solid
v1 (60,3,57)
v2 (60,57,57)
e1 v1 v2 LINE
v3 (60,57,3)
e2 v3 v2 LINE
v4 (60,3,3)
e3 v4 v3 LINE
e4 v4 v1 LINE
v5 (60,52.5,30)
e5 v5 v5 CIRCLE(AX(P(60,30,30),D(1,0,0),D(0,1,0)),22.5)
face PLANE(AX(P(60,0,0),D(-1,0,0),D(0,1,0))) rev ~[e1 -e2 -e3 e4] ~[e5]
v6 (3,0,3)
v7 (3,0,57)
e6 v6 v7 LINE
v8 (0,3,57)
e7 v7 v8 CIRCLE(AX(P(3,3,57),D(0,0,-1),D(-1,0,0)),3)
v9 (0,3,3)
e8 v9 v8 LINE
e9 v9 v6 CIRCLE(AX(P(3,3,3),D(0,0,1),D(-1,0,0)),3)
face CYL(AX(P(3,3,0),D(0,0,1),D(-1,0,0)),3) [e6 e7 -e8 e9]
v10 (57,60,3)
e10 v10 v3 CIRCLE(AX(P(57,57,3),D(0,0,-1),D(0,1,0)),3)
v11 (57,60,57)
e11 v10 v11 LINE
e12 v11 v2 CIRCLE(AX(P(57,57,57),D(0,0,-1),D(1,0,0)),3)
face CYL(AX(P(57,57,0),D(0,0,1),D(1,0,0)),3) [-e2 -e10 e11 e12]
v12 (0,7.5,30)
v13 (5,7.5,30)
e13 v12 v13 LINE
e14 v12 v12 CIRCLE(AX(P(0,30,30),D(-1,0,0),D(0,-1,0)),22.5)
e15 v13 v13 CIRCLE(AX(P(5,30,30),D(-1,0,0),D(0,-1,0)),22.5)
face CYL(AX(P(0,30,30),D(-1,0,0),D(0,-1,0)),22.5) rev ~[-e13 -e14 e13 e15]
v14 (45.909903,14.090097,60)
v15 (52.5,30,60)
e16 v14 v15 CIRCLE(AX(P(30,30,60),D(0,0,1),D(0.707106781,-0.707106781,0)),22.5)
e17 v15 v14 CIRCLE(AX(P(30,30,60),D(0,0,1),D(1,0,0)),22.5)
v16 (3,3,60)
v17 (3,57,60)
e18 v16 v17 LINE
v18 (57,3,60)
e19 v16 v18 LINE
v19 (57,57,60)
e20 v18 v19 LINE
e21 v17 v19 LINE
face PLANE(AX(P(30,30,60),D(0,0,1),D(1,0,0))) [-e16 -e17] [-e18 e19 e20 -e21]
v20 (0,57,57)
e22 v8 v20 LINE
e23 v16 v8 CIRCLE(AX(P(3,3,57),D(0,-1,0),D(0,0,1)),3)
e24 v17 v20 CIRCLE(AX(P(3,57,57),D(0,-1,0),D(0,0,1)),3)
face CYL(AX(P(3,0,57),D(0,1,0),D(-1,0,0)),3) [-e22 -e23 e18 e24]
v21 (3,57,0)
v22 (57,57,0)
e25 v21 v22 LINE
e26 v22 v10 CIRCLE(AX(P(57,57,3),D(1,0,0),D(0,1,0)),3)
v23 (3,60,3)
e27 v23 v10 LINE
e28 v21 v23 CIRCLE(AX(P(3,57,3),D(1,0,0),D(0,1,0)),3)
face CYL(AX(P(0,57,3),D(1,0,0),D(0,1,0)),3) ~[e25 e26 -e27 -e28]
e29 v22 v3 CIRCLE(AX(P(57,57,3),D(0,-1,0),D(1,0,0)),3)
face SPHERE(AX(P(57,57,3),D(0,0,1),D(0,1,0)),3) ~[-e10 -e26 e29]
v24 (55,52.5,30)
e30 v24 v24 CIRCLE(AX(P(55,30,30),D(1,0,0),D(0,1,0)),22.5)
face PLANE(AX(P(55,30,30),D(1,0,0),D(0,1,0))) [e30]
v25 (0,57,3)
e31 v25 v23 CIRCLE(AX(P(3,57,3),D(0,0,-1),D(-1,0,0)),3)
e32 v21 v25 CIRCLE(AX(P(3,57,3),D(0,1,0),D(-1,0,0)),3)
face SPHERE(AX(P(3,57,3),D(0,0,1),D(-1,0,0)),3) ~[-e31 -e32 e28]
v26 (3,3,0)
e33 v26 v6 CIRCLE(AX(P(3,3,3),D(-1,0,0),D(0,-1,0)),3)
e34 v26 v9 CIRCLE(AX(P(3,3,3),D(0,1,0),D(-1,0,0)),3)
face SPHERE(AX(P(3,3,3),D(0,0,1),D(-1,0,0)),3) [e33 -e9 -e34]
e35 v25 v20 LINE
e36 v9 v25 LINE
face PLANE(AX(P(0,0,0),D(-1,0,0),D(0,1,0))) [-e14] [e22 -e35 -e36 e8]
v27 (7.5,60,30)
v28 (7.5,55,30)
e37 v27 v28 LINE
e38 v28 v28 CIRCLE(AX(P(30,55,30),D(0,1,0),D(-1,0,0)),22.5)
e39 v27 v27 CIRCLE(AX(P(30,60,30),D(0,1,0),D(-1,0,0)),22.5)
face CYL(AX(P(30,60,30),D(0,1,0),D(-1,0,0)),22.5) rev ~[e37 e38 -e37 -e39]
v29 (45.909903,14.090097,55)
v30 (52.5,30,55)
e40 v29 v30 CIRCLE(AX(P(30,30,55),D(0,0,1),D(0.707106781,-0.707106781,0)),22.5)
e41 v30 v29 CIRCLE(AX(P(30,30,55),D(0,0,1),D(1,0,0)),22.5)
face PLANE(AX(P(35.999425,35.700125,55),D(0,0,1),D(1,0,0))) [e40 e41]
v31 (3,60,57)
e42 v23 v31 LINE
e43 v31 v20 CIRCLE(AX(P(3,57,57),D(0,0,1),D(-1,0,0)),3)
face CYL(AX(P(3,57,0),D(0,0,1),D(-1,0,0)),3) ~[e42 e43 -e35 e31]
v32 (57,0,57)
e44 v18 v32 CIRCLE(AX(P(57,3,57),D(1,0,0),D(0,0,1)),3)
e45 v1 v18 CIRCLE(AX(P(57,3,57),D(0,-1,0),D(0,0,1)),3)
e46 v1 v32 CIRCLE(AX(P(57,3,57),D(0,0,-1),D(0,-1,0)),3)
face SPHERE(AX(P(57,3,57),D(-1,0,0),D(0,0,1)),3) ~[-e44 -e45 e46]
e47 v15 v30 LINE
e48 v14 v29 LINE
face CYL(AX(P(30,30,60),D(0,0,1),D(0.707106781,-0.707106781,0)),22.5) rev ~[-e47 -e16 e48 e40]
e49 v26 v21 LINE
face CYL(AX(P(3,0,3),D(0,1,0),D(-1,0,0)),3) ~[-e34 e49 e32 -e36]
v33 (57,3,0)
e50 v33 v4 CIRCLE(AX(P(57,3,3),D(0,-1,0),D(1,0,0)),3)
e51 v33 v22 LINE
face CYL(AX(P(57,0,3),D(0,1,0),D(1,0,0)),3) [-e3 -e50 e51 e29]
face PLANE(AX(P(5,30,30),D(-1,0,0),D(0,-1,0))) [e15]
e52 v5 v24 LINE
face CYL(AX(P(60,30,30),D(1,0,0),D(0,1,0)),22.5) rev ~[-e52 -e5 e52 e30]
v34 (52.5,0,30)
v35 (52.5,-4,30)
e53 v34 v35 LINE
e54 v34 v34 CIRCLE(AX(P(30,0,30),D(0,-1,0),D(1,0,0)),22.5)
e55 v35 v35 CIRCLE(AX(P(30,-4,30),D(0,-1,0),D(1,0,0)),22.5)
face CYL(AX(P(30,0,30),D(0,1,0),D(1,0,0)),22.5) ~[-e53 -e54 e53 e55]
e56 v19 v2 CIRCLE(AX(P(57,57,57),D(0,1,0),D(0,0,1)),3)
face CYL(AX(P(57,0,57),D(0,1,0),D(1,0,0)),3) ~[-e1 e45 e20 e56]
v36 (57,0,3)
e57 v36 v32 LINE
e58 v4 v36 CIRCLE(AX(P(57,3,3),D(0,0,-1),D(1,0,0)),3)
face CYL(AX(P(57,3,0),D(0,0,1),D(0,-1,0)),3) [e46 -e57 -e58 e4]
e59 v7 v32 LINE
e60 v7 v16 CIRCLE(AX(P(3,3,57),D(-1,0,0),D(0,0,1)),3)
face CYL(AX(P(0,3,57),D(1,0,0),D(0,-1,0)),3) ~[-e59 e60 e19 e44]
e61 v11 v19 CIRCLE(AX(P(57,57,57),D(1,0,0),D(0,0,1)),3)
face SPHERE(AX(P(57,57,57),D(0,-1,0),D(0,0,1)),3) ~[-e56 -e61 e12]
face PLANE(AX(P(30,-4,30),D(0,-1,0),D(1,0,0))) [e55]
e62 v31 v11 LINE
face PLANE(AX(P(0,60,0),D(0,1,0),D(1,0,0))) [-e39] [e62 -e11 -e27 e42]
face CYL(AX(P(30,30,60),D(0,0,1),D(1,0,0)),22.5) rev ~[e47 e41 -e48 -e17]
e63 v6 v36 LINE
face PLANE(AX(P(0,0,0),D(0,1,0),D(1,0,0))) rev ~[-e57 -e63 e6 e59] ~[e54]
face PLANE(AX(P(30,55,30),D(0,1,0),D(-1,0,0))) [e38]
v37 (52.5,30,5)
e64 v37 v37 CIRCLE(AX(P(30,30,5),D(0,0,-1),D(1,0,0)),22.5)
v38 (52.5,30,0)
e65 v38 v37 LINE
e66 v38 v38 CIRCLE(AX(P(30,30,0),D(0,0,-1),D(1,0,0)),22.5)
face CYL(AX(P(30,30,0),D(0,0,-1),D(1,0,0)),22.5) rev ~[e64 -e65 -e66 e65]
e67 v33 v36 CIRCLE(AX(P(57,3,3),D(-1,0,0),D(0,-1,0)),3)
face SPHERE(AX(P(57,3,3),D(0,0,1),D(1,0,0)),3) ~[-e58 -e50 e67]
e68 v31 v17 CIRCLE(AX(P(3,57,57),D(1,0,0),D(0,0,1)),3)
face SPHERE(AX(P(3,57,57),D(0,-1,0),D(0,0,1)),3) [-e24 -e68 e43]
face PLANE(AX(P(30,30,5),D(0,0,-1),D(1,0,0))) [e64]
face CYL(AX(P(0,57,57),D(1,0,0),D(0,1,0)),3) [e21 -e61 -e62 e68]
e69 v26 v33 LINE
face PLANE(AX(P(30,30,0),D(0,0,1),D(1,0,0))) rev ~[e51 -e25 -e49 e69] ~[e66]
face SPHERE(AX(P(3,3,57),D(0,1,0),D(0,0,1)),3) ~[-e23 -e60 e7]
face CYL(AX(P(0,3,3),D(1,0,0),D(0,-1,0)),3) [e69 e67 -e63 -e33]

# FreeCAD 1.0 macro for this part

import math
import FreeCAD as App
import Part
import Sketcher

V = App.Vector


def add_polygon(sketch, points):
    """Adds a closed chain of lines whose ends are joined by coincident constraints."""
    first, n = sketch.GeometryCount, len(points)
    for a, b in zip(points, points[1:] + points[:1]):
        sketch.addGeometry(Part.LineSegment(App.Vector(*a, 0), App.Vector(*b, 0)), False)
    for i in range(n):
        sketch.addConstraint(Sketcher.Constraint("Coincident", first + i, 2, first + (i + 1) % n, 1))

doc = App.newDocument("Part")
params = doc.addObject("Spreadsheet::Sheet", "Params")
for row, (alias, value) in enumerate([
    ("sketch1_width", "60 mm"),
    ("pad1_length", "60 mm"),
    ("fillet_radius", "3 mm"),
    ("sketch2_radius", "22.5 mm"),
    ("pocket1_length", "5 mm"),
    ("sketch3_diameter", "45 mm"),
    ("pocket2_length", "5 mm"),
    ("sketch4_diameter", "45 mm"),
    ("pad2_length", "4 mm"),
    ("sketch5_diameter", "45 mm"),
    ("pocket3_length", "5 mm"),
    ("sketch6_diameter", "45 mm"),
    ("pocket4_length", "5 mm"),
    ("sketch7_diameter", "45 mm"),
    ("pocket5_length", "5 mm"),
], start=1):
    params.set(f"A{row}", alias)
    params.set(f"B{row}", "=" + value)
    params.setAlias(f"B{row}", alias)

body = doc.addObject("PartDesign::Body", "Body")

# Sketch on XY plane
sketch1 = doc.addObject("Sketcher::SketchObject", "Sketch")
body.addObject(sketch1)
sketch1.AttachmentSupport = (doc.XY_Plane, [""])
sketch1.MapMode = "FlatFace"
add_polygon(sketch1, [(0, 60), (0, 0), (60, 0), (60, 60)])  # lines 0-3
sketch1.addConstraint(Sketcher.Constraint("Vertical", 0))
sketch1.addConstraint(Sketcher.Constraint("Horizontal", 1))
sketch1.addConstraint(Sketcher.Constraint("Vertical", 2))
sketch1.addConstraint(Sketcher.Constraint("Horizontal", 3))
sketch1.addConstraint(Sketcher.Constraint("Coincident", 0, 2, -1, 1))
sketch1.addConstraint(Sketcher.Constraint("Equal", 3, 0))
sketch1.addConstraint(Sketcher.Constraint("DistanceX", 1, 1, 1, 2, 60.0))
sketch1.setExpression("Constraints[10]", "Params.sketch1_width")
pad1 = doc.addObject("PartDesign::Pad", "Pad")
body.addObject(pad1)
pad1.Profile = sketch1
pad1.setExpression("Length", "Params.pad1_length")
doc.recompute()

fillet = doc.addObject("PartDesign::Fillet", "Fillet")
body.addObject(fillet)
fillet.Base = (pad1, ["Edge1"])
fillet.UseAllEdges = True
fillet.setExpression("Radius", "Params.fillet_radius")

# Sketch on XY plane
sketch2 = doc.addObject("Sketcher::SketchObject", "Sketch001")
body.addObject(sketch2)
sketch2.AttachmentSupport = (doc.XY_Plane, [""])
sketch2.MapMode = "FlatFace"
sketch2.AttachmentOffset = App.Placement(V(0, 0, 60), App.Rotation())
sketch2.addGeometry(Part.ArcOfCircle(Part.Circle(V(30, 30, 0), V(0, 0, 1), 22), math.radians(0), math.radians(315)), False)
sketch2.addGeometry(Part.ArcOfCircle(Part.Circle(V(30, 30, 0), V(0, 0, 1), 22), math.radians(-45), math.radians(0)), False)
sketch2.addConstraint(Sketcher.Constraint("Tangent", 0, 1, 1, 2))
sketch2.addConstraint(Sketcher.Constraint("Coincident", 1, 1, 0, 2))
sketch2.addConstraint(Sketcher.Constraint("Horizontal", 1, 3, 0, 1))
sketch2.addConstraint(Sketcher.Constraint("Radius", 0, 22.5))
sketch2.addConstraint(Sketcher.Constraint("DistanceX", -1, 1, 0, 3, 30.0))
sketch2.addConstraint(Sketcher.Constraint("DistanceY", -1, 1, 0, 3, 30.0))
sketch2.addConstraint(Sketcher.Constraint("DistanceX", -1, 1, 1, 1, 45.909903))
sketch2.setExpression("Constraints[3]", "Params.sketch2_radius")
pocket1 = doc.addObject("PartDesign::Pocket", "Pocket")
body.addObject(pocket1)
pocket1.Profile = sketch2
pocket1.setExpression("Length", "Params.pocket1_length")

# Sketch on YZ plane
sketch3 = doc.addObject("Sketcher::SketchObject", "Sketch002")
body.addObject(sketch3)
sketch3.AttachmentSupport = (doc.YZ_Plane, [""])
sketch3.MapMode = "FlatFace"
sketch3.AttachmentOffset = App.Placement(V(0, 0, 60), App.Rotation())
sketch3.addGeometry(Part.Circle(V(30, 30, 0), V(0, 0, 1), 22), False)
sketch3.addConstraint(Sketcher.Constraint("Diameter", 0, 45.0))
sketch3.addConstraint(Sketcher.Constraint("DistanceX", -1, 1, 0, 3, 30.0))
sketch3.addConstraint(Sketcher.Constraint("DistanceY", -1, 1, 0, 3, 30.0))
sketch3.setExpression("Constraints[0]", "Params.sketch3_diameter")
pocket2 = doc.addObject("PartDesign::Pocket", "Pocket001")
body.addObject(pocket2)
pocket2.Profile = sketch3
pocket2.setExpression("Length", "Params.pocket2_length")

# Sketch on XZ plane
sketch4 = doc.addObject("Sketcher::SketchObject", "Sketch003")
body.addObject(sketch4)
sketch4.AttachmentSupport = (doc.XZ_Plane, [""])
sketch4.MapMode = "FlatFace"
sketch4.addGeometry(Part.Circle(V(30, 30, 0), V(0, 0, 1), 22), False)
sketch4.addConstraint(Sketcher.Constraint("Diameter", 0, 45.0))
sketch4.addConstraint(Sketcher.Constraint("DistanceX", -1, 1, 0, 3, 30.0))
sketch4.addConstraint(Sketcher.Constraint("DistanceY", -1, 1, 0, 3, 30.0))
sketch4.setExpression("Constraints[0]", "Params.sketch4_diameter")
pad2 = doc.addObject("PartDesign::Pad", "Pad001")
body.addObject(pad2)
pad2.Profile = sketch4
pad2.setExpression("Length", "Params.pad2_length")

# Sketch on XZ plane
sketch5 = doc.addObject("Sketcher::SketchObject", "Sketch004")
body.addObject(sketch5)
sketch5.AttachmentSupport = (doc.XZ_Plane, [""])
sketch5.MapMode = "FlatFace"
sketch5.AttachmentOffset = App.Placement(V(0, 0, -60), App.Rotation())
sketch5.addGeometry(Part.Circle(V(30, 30, 0), V(0, 0, 1), 22), False)
sketch5.addConstraint(Sketcher.Constraint("Diameter", 0, 45.0))
sketch5.addConstraint(Sketcher.Constraint("DistanceX", -1, 1, 0, 3, 30.0))
sketch5.addConstraint(Sketcher.Constraint("DistanceY", -1, 1, 0, 3, 30.0))
sketch5.setExpression("Constraints[0]", "Params.sketch5_diameter")
pocket3 = doc.addObject("PartDesign::Pocket", "Pocket002")
body.addObject(pocket3)
pocket3.Profile = sketch5
pocket3.setExpression("Length", "Params.pocket3_length")
pocket3.Reversed = True

# Sketch on YZ plane
sketch6 = doc.addObject("Sketcher::SketchObject", "Sketch005")
body.addObject(sketch6)
sketch6.AttachmentSupport = (doc.YZ_Plane, [""])
sketch6.MapMode = "FlatFace"
sketch6.addGeometry(Part.Circle(V(30, 30, 0), V(0, 0, 1), 22), False)
sketch6.addConstraint(Sketcher.Constraint("Diameter", 0, 45.0))
sketch6.addConstraint(Sketcher.Constraint("DistanceX", -1, 1, 0, 3, 30.0))
sketch6.addConstraint(Sketcher.Constraint("DistanceY", -1, 1, 0, 3, 30.0))
sketch6.setExpression("Constraints[0]", "Params.sketch6_diameter")
pocket4 = doc.addObject("PartDesign::Pocket", "Pocket003")
body.addObject(pocket4)
pocket4.Profile = sketch6
pocket4.setExpression("Length", "Params.pocket4_length")
pocket4.Reversed = True

# Sketch on XY plane
sketch7 = doc.addObject("Sketcher::SketchObject", "Sketch006")
body.addObject(sketch7)
sketch7.AttachmentSupport = (doc.XY_Plane, [""])
sketch7.MapMode = "FlatFace"
sketch7.addGeometry(Part.Circle(V(30, 30, 0), V(0, 0, 1), 22), False)
sketch7.addConstraint(Sketcher.Constraint("Diameter", 0, 45.0))
sketch7.addConstraint(Sketcher.Constraint("DistanceX", -1, 1, 0, 3, 30.0))
sketch7.addConstraint(Sketcher.Constraint("DistanceY", -1, 1, 0, 3, 30.0))
sketch7.setExpression("Constraints[0]", "Params.sketch7_diameter")
pocket5 = doc.addObject("PartDesign::Pocket", "Pocket004")
body.addObject(pocket5)
pocket5.Profile = sketch7
pocket5.setExpression("Length", "Params.pocket5_length")
pocket5.Reversed = True

doc.recompute()
